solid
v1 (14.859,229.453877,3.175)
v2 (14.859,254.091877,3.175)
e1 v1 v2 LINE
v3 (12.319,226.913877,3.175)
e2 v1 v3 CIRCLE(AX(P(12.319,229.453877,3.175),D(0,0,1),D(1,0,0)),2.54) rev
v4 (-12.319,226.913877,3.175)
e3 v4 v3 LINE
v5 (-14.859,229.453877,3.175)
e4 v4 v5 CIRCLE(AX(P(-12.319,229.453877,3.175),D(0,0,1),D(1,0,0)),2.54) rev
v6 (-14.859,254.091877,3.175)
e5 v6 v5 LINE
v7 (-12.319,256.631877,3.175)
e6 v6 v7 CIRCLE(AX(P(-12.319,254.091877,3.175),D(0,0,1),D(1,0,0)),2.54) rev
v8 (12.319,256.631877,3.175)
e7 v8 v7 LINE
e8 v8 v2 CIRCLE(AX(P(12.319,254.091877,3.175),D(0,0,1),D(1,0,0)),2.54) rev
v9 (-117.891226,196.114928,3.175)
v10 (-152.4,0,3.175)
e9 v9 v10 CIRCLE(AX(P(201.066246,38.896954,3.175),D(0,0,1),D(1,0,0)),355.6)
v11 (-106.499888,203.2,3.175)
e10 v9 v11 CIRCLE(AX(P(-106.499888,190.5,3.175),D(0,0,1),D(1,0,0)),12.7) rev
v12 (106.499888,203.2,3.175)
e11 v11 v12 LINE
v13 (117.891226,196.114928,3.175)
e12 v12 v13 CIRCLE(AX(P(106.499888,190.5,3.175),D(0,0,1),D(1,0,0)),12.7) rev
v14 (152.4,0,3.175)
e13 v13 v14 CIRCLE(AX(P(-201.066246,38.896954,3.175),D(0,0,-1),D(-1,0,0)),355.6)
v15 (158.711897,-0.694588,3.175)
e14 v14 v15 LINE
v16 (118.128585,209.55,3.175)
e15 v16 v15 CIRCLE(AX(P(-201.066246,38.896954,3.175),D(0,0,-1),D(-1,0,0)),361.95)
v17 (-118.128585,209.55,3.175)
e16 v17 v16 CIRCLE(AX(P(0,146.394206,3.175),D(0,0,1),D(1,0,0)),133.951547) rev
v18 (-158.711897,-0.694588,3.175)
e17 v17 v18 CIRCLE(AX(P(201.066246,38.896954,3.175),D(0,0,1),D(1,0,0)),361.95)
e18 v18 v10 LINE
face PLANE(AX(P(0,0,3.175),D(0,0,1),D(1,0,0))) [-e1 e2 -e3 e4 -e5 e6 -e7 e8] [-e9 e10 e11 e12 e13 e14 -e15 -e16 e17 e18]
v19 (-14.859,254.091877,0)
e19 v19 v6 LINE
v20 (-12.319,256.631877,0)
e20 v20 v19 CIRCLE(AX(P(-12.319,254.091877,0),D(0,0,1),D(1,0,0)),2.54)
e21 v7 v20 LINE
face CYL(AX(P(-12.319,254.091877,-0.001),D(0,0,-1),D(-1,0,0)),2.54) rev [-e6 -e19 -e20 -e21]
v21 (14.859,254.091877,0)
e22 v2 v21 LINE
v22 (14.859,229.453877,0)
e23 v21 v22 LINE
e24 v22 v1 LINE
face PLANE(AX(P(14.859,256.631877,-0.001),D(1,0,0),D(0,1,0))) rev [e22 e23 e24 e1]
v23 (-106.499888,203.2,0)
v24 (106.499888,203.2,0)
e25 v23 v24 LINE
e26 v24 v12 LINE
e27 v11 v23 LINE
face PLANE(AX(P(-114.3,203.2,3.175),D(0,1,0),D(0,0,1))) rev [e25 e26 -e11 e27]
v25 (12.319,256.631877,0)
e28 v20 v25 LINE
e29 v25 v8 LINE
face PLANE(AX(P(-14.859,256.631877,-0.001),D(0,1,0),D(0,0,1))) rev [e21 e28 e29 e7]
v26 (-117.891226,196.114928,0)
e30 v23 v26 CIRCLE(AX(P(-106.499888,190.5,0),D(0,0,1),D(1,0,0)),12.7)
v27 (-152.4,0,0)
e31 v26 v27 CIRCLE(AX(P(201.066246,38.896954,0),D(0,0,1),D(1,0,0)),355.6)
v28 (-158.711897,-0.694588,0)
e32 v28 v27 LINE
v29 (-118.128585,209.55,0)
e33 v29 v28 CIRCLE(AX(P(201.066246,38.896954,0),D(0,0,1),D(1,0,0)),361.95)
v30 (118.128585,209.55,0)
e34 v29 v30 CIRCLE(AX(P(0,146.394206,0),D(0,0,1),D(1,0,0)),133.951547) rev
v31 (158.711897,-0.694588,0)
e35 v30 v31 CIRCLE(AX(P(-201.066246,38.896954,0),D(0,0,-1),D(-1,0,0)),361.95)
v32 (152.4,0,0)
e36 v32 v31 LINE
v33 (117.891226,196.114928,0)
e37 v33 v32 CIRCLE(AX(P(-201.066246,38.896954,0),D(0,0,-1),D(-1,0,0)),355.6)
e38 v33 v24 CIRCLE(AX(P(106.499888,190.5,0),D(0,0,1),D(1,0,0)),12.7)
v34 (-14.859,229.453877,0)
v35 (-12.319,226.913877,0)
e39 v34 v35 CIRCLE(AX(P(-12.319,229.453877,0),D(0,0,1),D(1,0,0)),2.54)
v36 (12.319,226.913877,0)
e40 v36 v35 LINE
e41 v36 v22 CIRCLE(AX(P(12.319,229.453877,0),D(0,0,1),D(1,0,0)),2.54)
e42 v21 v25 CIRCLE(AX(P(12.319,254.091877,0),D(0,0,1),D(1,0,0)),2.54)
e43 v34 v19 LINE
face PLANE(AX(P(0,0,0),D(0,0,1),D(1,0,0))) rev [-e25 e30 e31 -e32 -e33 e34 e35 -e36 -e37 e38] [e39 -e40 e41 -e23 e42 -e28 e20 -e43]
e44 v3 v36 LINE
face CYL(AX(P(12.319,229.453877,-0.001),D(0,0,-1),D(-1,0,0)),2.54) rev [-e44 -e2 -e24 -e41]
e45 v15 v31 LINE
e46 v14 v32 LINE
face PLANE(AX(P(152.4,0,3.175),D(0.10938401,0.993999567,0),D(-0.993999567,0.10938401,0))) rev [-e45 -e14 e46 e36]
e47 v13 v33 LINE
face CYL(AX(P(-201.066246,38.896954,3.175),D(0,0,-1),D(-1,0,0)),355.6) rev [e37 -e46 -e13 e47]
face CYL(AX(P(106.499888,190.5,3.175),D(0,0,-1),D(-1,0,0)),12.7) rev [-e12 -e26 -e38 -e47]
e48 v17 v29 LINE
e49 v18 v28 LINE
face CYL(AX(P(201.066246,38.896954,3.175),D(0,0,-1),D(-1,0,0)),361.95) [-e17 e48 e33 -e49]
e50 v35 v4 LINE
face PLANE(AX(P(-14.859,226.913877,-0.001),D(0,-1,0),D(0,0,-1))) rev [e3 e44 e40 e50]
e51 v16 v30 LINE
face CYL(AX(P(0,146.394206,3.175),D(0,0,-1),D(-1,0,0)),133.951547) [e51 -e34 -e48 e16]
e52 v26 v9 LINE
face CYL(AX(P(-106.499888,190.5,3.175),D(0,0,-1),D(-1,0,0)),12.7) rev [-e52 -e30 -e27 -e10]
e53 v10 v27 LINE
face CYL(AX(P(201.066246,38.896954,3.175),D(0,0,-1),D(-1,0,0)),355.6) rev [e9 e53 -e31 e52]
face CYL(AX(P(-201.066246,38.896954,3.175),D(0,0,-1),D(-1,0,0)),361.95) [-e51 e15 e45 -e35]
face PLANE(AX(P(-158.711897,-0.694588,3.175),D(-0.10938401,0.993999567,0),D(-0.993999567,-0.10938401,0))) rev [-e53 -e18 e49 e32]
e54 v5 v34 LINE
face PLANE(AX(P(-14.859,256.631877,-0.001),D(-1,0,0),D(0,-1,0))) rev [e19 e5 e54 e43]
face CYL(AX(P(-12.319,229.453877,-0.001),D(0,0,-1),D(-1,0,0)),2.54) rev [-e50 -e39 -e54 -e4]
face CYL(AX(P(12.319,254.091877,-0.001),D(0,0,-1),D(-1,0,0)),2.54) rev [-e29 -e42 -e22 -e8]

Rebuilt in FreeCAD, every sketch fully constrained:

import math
import FreeCAD as App
import Part
import Sketcher
from FreeCAD import Vector
Q = App.Units.Quantity


def edges_at(feature, points):
    """Names of the edges that pass closest to the given points."""
    edges = feature.Shape.Edges
    near = lambda p: min(range(len(edges)), key=lambda i: edges[i].distToShape(Part.Vertex(*p))[0])
    return sorted({f"Edge{near(p) + 1}" for p in points})


def add_polygon(sketch, points):
    """Adds a closed chain of lines whose ends are joined by coincident constraints."""
    first, n = sketch.GeometryCount, len(points)
    for a, b in zip(points, points[1:] + points[:1]):
        sketch.addGeometry(Part.LineSegment(App.Vector(*a, 0), App.Vector(*b, 0)), False)
    for i in range(n):
        sketch.addConstraint(Sketcher.Constraint("Coincident", first + i, 2, first + (i + 1) % n, 1))

doc = App.newDocument("Part")
params = doc.addObject("Spreadsheet::Sheet", "Params")
for row, (alias, value) in enumerate([
    ("sketch1_radius", "14 in"),
    ("sketch1_width", "9 in"),
    ("sketch1_radius2", "14.25 in"),
    ("pad1_length", "0.125 in"),
    ("sketch2_width", "1.17 in"),
    ("fillet_radius", "0.1 in"),
    ("fillet2_radius", "0.5 in"),
], start=1):
    params.set(f"A{row}", alias)
    params.set(f"B{row}", "=" + value)
    params.setAlias(f"B{row}", alias)

body = doc.addObject("PartDesign::Body", "Body")

sketch1 = doc.addObject("Sketcher::SketchObject", "Sketch")
body.addObject(sketch1)
sketch1.AttachmentSupport = (doc.XY_Plane, [""])
sketch1.MapMode = "FlatFace"
sketch1.addGeometry(Part.LineSegment(Vector(-114.3, 203.2, 0), Vector(114.3, 203.2, 0)), False)
sketch1.addGeometry(Part.ArcOfCircle(Part.Circle(Vector(-201.066246, 38.896954, 0), Vector(0, 0, 1), 355.6), math.radians(-6.279808), math.radians(27.519118)), False)
sketch1.addGeometry(Part.LineSegment(Vector(152.4, 0, 0), Vector(158.711897, -0.694588, 0)), False)
sketch1.addGeometry(Part.ArcOfCircle(Part.Circle(Vector(-201.066246, 38.896954, 0), Vector(0, 0, 1), 361.95), math.radians(-6.279808), math.radians(28.130564)), False)
sketch1.addGeometry(Part.ArcOfCircle(Part.Circle(Vector(0, 146.394206, 0), Vector(0, 0, 1), 133.951547), math.radians(28.130564), math.radians(151.869436)), False)
sketch1.addGeometry(Part.ArcOfCircle(Part.Circle(Vector(201.066246, 38.896954, 0), Vector(0, 0, 1), 361.95), math.radians(151.869436), math.radians(186.279808)), False)
sketch1.addGeometry(Part.LineSegment(Vector(-158.711897, -0.694588, 0), Vector(-152.4, 0, 0)), False)
sketch1.addGeometry(Part.ArcOfCircle(Part.Circle(Vector(201.066246, 38.896954, 0), Vector(0, 0, 1), 355.6), math.radians(152.480882), math.radians(186.279808)), False)
sketch1.addConstraint(Sketcher.Constraint("Coincident", 0, 2, 1, 2))
sketch1.addConstraint(Sketcher.Constraint("Coincident", 1, 1, 2, 1))
sketch1.addConstraint(Sketcher.Constraint("Coincident", 2, 2, 3, 1))
sketch1.addConstraint(Sketcher.Constraint("Tangent", 3, 2, 4, 1))
sketch1.addConstraint(Sketcher.Constraint("Tangent", 4, 2, 5, 1))
sketch1.addConstraint(Sketcher.Constraint("Coincident", 5, 2, 6, 1))
sketch1.addConstraint(Sketcher.Constraint("Coincident", 6, 2, 7, 2))
sketch1.addConstraint(Sketcher.Constraint("Coincident", 7, 1, 0, 1))
sketch1.addConstraint(Sketcher.Constraint("Horizontal", 0))
sketch1.addConstraint(Sketcher.Constraint("Coincident", 3, 3, 1, 3))
sketch1.addConstraint(Sketcher.Constraint("Coincident", 7, 3, 5, 3))
sketch1.addConstraint(Sketcher.Constraint("Equal", 3, 5))
sketch1.addConstraint(Sketcher.Constraint("Equal", 1, 7))
sketch1.addConstraint(Sketcher.Constraint("Symmetric", 1, 1, 6, 2, -1, 1))
sketch1.addConstraint(Sketcher.Constraint("Symmetric", 1, 3, 5, 3, -2))
sketch1.addConstraint(Sketcher.Constraint("Horizontal", 2, 2, 5, 2))
sketch1.addConstraint(Sketcher.Constraint("Radius", 1, Q("14 in")))
sketch1.addConstraint(Sketcher.Constraint("DistanceX", 0, 1, 0, 2, Q("9 in")))
sketch1.addConstraint(Sketcher.Constraint("Radius", 3, Q("14.25 in")))
sketch1.addConstraint(Sketcher.Constraint("DistanceY", -1, 1, 0, 2, Q("8 in")))
sketch1.addConstraint(Sketcher.Constraint("DistanceX", -1, 1, 1, 1, Q("6 in")))
sketch1.addConstraint(Sketcher.Constraint("DistanceY", -1, 1, 3, 2, Q("8.25 in")))
sketch1.addConstraint(Sketcher.Constraint("DistanceX", -1, 1, 2, 2, Q("6.2484999 in")))
sketch1.setExpression("Constraints[16]", "Params.sketch1_radius")
sketch1.setExpression("Constraints[17]", "Params.sketch1_width")
sketch1.setExpression("Constraints[18]", "Params.sketch1_radius2")
pad1 = doc.addObject("PartDesign::Pad", "Pad")
body.addObject(pad1)
pad1.Profile = sketch1
pad1.setExpression("Length", "Params.pad1_length")

sketch2 = doc.addObject("Sketcher::SketchObject", "Sketch001")
body.addObject(sketch2)
sketch2.AttachmentSupport = (doc.XY_Plane, [""])
sketch2.MapMode = "FlatFace"
sketch2.AttachmentOffset = App.Placement(Vector(0, 0, 0.125 * 25.4), App.Rotation())
add_polygon(sketch2, [(-14.859, 256.631877), (-14.859, 226.913877), (14.859, 226.913877), (14.859, 256.631877)])
sketch2.addConstraint(Sketcher.Constraint("Vertical", 0))
sketch2.addConstraint(Sketcher.Constraint("Horizontal", 1))
sketch2.addConstraint(Sketcher.Constraint("Vertical", 2))
sketch2.addConstraint(Sketcher.Constraint("Horizontal", 3))
sketch2.addConstraint(Sketcher.Constraint("Equal", 3, 0))
sketch2.addConstraint(Sketcher.Constraint("DistanceX", 1, 1, 1, 2, Q("1.17 in")))
sketch2.addConstraint(Sketcher.Constraint("DistanceX", 0, 2, -1, 1, Q("0.585 in")))
sketch2.addConstraint(Sketcher.Constraint("DistanceY", -1, 1, 0, 2, Q("226.913877 mm")))
sketch2.setExpression("Constraints[9]", "Params.sketch2_width")
pocket1 = doc.addObject("PartDesign::Pocket", "Pocket")
body.addObject(pocket1)
pocket1.Profile = sketch2
pocket1.Type = "UpToFirst"
doc.recompute()

fillet = doc.addObject("PartDesign::Fillet", "Fillet")
body.addObject(fillet)
fillet.Base = (pocket1, edges_at(pocket1, [
    (14.859, 256.632, 1.587),
    (14.859, 226.914, 1.587),
    (-14.859, 226.914, 1.587),
    (-14.859, 256.632, 1.587),
]))
fillet.setExpression("Radius", "Params.fillet_radius")
doc.recompute()

fillet2 = doc.addObject("PartDesign::Fillet", "Fillet001")
body.addObject(fillet2)
fillet2.Base = (fillet, edges_at(fillet, [(-114.3, 203.2, 1.587), (114.3, 203.2, 1.587)]))
fillet2.setExpression("Radius", "Params.fillet2_radius")

doc.recompute()
